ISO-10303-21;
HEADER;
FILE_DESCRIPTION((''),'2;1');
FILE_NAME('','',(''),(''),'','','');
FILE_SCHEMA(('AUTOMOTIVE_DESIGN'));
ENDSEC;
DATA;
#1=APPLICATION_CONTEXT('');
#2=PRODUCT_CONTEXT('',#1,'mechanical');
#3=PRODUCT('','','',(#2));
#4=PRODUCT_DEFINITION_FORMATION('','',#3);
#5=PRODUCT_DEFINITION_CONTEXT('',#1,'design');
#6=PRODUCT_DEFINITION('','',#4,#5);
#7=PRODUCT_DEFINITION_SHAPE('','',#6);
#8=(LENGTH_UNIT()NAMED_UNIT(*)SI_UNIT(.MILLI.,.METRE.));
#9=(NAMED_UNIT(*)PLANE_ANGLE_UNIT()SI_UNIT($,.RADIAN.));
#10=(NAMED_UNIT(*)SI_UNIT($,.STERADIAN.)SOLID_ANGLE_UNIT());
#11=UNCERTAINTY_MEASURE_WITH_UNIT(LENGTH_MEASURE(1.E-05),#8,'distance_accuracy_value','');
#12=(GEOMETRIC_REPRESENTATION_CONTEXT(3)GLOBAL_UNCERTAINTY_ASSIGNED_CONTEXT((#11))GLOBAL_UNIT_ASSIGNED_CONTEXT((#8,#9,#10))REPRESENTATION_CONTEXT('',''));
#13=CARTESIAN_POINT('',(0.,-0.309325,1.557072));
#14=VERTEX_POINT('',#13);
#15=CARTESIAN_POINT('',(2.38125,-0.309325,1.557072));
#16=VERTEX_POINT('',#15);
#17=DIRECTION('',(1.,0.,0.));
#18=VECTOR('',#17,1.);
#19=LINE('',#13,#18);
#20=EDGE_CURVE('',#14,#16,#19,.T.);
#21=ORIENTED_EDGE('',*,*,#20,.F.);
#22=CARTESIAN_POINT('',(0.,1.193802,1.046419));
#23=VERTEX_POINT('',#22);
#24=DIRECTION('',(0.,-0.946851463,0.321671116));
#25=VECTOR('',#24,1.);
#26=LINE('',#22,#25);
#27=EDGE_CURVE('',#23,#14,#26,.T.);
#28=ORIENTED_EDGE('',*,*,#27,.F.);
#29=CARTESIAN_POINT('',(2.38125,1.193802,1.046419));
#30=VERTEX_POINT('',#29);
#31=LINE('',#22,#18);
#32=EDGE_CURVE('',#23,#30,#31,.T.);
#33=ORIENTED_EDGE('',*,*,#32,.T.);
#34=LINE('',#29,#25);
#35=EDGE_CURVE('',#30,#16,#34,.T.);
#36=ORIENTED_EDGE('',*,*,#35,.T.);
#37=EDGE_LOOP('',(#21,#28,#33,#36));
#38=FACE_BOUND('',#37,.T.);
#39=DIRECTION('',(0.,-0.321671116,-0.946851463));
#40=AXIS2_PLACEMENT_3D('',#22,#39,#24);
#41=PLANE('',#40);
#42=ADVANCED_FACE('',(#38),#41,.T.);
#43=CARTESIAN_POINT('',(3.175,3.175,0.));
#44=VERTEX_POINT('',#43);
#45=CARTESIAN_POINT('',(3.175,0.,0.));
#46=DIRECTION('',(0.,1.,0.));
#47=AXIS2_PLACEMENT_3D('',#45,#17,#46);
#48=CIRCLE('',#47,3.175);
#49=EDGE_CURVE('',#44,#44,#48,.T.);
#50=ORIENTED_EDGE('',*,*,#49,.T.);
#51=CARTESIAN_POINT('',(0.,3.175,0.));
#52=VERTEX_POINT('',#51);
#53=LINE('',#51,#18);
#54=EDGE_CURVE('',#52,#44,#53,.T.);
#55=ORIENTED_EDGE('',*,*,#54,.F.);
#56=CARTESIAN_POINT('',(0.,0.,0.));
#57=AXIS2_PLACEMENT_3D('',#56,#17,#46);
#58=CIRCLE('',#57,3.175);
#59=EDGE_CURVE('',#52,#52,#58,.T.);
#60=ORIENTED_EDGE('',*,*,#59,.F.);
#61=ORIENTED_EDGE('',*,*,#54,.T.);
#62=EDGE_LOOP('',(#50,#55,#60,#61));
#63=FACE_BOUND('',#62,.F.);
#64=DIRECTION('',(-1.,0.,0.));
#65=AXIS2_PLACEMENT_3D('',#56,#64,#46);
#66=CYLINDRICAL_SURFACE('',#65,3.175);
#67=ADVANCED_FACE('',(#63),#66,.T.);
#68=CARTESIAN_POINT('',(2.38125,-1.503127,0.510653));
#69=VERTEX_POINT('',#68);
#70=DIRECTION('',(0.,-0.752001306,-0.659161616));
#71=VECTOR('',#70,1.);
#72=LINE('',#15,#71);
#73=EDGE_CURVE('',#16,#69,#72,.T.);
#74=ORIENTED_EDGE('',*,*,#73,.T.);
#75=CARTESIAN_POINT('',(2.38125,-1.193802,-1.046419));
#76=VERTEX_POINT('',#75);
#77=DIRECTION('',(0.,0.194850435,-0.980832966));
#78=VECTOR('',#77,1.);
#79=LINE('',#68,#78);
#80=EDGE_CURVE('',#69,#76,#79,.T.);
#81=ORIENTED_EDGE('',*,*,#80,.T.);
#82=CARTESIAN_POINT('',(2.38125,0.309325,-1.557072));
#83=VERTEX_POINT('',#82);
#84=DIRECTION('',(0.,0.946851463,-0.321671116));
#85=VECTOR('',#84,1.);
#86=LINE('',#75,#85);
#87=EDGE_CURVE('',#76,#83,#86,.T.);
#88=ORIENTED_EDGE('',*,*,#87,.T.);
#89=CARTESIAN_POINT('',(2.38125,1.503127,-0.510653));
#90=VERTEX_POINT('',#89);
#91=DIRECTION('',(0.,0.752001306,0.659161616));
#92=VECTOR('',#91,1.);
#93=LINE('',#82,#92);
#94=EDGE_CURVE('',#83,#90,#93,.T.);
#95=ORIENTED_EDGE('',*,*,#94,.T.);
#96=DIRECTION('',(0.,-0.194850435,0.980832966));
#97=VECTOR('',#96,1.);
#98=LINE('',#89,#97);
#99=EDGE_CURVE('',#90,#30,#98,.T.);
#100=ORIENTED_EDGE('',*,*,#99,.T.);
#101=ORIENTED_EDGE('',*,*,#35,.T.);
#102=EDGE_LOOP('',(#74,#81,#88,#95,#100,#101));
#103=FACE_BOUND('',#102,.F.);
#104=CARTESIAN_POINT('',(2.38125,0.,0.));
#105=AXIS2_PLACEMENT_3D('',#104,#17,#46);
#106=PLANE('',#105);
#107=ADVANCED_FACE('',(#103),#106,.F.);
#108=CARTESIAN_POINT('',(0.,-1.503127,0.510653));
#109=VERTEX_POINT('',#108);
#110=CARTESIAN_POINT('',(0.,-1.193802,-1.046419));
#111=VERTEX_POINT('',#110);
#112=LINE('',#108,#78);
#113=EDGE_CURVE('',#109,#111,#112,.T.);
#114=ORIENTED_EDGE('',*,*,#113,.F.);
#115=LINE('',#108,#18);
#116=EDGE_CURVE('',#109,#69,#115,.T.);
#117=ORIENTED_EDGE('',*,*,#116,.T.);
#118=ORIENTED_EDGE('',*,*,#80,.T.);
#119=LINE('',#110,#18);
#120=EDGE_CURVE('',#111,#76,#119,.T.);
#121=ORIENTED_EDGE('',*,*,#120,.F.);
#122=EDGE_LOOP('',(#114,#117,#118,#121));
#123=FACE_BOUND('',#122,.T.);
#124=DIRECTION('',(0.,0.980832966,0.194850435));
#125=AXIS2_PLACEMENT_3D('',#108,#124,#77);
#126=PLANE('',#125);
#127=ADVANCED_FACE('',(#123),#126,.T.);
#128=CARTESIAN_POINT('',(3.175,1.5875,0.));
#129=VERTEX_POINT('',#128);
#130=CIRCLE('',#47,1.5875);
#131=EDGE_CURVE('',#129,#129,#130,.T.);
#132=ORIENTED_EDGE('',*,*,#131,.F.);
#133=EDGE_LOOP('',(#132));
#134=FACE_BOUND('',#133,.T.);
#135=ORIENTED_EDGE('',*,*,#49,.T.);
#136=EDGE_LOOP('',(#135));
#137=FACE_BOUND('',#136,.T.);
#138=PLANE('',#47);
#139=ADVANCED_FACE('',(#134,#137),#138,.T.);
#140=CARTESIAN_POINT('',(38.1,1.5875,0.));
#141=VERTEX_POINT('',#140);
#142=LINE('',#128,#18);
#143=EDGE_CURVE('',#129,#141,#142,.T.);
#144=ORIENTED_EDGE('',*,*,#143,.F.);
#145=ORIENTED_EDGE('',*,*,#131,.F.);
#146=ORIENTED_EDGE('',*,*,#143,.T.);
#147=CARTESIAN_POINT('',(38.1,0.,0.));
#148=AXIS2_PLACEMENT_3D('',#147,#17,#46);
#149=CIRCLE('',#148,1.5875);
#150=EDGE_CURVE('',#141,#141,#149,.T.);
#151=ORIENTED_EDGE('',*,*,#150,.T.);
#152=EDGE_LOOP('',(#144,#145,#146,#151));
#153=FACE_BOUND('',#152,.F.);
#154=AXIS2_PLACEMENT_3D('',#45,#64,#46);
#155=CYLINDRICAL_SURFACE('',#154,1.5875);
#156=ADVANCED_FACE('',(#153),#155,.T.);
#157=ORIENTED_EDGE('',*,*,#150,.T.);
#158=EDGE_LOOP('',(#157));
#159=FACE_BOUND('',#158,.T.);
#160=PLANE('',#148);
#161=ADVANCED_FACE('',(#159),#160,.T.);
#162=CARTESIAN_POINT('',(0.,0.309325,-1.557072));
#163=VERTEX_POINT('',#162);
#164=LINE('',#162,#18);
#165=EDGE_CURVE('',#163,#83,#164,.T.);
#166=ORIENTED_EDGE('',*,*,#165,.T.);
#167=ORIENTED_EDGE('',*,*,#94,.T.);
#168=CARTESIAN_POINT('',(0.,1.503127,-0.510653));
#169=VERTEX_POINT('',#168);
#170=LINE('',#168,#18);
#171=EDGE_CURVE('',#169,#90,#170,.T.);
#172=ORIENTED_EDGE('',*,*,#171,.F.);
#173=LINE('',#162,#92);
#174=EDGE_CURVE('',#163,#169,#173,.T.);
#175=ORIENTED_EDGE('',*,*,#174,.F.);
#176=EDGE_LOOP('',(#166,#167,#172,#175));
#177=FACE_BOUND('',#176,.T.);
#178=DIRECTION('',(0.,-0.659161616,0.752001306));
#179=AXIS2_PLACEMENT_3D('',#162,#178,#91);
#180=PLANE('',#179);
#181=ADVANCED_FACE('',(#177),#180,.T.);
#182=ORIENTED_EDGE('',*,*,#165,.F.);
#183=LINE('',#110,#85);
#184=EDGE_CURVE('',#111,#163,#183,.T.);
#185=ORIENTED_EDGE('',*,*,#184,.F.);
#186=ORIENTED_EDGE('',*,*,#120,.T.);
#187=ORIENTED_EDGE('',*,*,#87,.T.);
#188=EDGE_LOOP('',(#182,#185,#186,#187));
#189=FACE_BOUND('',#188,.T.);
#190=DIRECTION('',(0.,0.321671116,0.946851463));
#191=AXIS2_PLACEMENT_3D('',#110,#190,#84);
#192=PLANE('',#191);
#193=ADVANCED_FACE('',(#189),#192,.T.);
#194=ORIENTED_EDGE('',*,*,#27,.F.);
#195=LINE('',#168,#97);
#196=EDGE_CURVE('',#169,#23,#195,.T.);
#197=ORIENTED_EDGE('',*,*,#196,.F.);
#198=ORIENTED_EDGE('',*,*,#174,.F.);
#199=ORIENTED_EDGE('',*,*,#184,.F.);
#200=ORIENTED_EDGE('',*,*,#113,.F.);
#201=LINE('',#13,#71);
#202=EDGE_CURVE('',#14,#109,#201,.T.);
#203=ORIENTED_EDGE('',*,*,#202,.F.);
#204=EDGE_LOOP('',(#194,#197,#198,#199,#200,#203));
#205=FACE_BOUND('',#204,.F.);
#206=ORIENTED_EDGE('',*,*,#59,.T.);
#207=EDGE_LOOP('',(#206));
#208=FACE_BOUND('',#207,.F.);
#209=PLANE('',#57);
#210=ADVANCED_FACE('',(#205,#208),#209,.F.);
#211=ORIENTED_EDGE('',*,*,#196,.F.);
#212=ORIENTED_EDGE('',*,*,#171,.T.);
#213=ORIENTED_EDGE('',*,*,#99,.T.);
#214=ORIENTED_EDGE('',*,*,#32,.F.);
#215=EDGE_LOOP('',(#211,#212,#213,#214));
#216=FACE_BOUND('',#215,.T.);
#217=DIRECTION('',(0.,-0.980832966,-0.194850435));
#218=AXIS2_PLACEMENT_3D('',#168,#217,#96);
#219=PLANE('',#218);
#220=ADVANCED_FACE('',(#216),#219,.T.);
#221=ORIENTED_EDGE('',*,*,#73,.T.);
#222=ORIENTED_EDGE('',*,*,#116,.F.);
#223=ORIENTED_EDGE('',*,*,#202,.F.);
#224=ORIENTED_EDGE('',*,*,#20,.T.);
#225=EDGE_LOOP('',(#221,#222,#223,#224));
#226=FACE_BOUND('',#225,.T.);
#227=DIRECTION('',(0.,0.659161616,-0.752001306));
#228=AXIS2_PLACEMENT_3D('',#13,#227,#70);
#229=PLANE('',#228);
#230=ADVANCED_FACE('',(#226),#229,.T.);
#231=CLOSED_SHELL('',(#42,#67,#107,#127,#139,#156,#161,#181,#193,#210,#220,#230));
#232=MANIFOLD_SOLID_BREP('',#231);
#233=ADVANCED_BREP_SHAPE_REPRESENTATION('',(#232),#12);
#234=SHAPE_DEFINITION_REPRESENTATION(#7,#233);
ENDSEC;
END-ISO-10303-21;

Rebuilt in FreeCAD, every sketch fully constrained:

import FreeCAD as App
import Part
import Sketcher
from FreeCAD import Vector
Q = App.Units.Quantity

doc = App.newDocument("Part")
body = doc.addObject("PartDesign::Body", "Body")

sketch1 = body.newObject("Sketcher::SketchObject", "Sketch")
sketch1.AttachmentSupport = (doc.getObject("YZ_Plane"), [""])
sketch1.MapMode = "FlatFace"
sketch1.addGeometry(Part.Circle(Vector(0, 0, 0), Vector(0, 0, 1), 3.2), False)
sketch1.addConstraint([
    Sketcher.Constraint("Coincident", 0, 3, -1, 1),
    Sketcher.Constraint("Diameter", 0, Q("0.25 in")),
])
pad1 = body.newObject("PartDesign::Pad", "Pad")
pad1.Profile = sketch1
pad1.Length = Q("0.125 in")

sketch2 = body.newObject("Sketcher::SketchObject", "Sketch001")
sketch2.AttachmentSupport = (doc.getObject("YZ_Plane"), [""])
sketch2.MapMode = "FlatFace"
sketch2.AttachmentOffset = App.Placement(Vector(0, 0, 0.125 * 25.4), App.Rotation())
sketch2.addGeometry(Part.Circle(Vector(0, 0, 0), Vector(0, 0, 1), 1.6), False)
sketch2.addConstraint([
    Sketcher.Constraint("Coincident", 0, 3, -1, 1),
    Sketcher.Constraint("Diameter", 0, Q("0.125 in")),
])
pad2 = body.newObject("PartDesign::Pad", "Pad001")
pad2.Profile = sketch2
pad2.Length = Q("1.375 in")

sketch3 = body.newObject("Sketcher::SketchObject", "Sketch002")
sketch3.AttachmentSupport = (doc.getObject("YZ_Plane"), [""])
sketch3.MapMode = "FlatFace"
sketch3.addGeometry([
    Part.LineSegment(Vector(0.3, -1.6, 0), Vector(1.5, -0.5, 0)),
    Part.LineSegment(Vector(1.5, -0.5, 0), Vector(1.2, 1, 0)),
    Part.LineSegment(Vector(1.2, 1, 0), Vector(-0.3, 1.6, 0)),
    Part.LineSegment(Vector(-0.3, 1.6, 0), Vector(-1.5, 0.5, 0)),
    Part.LineSegment(Vector(-1.5, 0.5, 0), Vector(-1.2, -1, 0)),
    Part.LineSegment(Vector(-1.2, -1, 0), Vector(0.3, -1.6, 0)),
], False)
sketch3.addConstraint([
    Sketcher.Constraint("Coincident", 0, 2, 1, 1),
    Sketcher.Constraint("Coincident", 1, 2, 2, 1),
    Sketcher.Constraint("Coincident", 2, 2, 3, 1),
    Sketcher.Constraint("Coincident", 3, 2, 4, 1),
    Sketcher.Constraint("Coincident", 4, 2, 5, 1),
    Sketcher.Constraint("Coincident", 5, 2, 0, 1),
    Sketcher.Constraint("Symmetric", 0, 2, 3, 2, -1, 1),
    Sketcher.Constraint("Symmetric", 1, 2, 4, 2, -1, 1),
    Sketcher.Constraint("Symmetric", 2, 2, 5, 2, -1, 1),
    Sketcher.Constraint("Equal", 0, 1),
    Sketcher.Constraint("Equal", 1, 2),
    Sketcher.Constraint("Distance", 0, Q("0.0625 in")),
    Sketcher.Constraint("DistanceX", -1, 1, 1, 2, Q("0.0470001 in")),
    Sketcher.Constraint("DistanceX", 3, 2, 2, 2, Q("0.0470001 in")),
    Sketcher.Constraint("DistanceY", -1, 1, 1, 2, Q("1.046419 mm")),
])
pocket1 = body.newObject("PartDesign::Pocket", "Pocket")
pocket1.Profile = sketch3
pocket1.Length = Q("0.09375 in")
pocket1.Reversed = True

doc.recompute()
